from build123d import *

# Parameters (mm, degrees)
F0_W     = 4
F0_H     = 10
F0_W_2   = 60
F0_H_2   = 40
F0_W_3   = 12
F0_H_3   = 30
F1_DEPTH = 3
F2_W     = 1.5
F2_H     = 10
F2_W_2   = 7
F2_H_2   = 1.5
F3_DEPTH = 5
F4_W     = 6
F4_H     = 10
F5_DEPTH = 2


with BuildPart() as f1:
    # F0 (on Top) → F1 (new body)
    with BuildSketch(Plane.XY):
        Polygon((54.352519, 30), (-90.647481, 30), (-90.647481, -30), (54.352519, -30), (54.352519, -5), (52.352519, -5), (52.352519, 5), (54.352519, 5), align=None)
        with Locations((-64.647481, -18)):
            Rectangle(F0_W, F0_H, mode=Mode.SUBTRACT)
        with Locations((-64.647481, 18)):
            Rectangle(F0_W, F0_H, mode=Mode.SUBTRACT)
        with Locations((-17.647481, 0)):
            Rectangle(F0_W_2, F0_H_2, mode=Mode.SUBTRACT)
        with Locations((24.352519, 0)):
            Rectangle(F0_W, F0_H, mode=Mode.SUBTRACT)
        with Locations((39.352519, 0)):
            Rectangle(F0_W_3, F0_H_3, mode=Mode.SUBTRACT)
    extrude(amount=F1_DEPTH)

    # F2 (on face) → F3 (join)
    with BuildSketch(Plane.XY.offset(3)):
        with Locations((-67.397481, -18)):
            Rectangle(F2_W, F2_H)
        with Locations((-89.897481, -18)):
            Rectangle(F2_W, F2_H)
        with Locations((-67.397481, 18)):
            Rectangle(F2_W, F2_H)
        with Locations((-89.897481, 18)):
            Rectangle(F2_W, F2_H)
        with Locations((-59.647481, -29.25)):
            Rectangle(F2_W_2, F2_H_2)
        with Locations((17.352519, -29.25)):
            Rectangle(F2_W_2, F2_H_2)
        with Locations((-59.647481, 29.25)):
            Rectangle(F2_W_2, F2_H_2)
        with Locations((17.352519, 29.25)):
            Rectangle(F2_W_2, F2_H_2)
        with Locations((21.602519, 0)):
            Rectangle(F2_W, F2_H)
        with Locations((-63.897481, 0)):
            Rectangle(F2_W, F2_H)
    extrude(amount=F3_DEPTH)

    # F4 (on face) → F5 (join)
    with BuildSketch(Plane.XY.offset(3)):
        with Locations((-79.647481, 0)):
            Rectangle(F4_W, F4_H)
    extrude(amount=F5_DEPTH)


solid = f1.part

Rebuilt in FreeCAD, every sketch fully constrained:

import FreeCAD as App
import Part
import Sketcher

V = App.Vector
Q = App.Units.Quantity

doc = App.newDocument("Part")
body = doc.addObject("PartDesign::Body", "Body")

# Sketch on XY plane
sketch1 = body.newObject("Sketcher::SketchObject", "Sketch")
sketch1.AttachmentSupport = (doc.getObject("XY_Plane"), [""])
sketch1.MapMode = "FlatFace"
sketch1.addGeometry(Part.LineSegment(V(54.4, 30, 0), V(-90.6, 30, 0)), False)
sketch1.addGeometry(Part.LineSegment(V(-90.6, 30, 0), V(-90.6, -30, 0)), False)
sketch1.addGeometry(Part.LineSegment(V(-90.6, -30, 0), V(54.4, -30, 0)), False)
sketch1.addGeometry(Part.LineSegment(V(54.4, -30, 0), V(54.4, -5, 0)), False)
sketch1.addGeometry(Part.LineSegment(V(54.4, -5, 0), V(52.4, -5, 0)), False)
sketch1.addGeometry(Part.LineSegment(V(52.4, -5, 0), V(52.4, 5, 0)), False)
sketch1.addGeometry(Part.LineSegment(V(52.4, 5, 0), V(54.4, 5, 0)), False)
sketch1.addGeometry(Part.LineSegment(V(54.4, 5, 0), V(54.4, 30, 0)), False)
sketch1.addGeometry(Part.LineSegment(V(-62.6, -23, 0), V(-66.6, -23, 0)), False)
sketch1.addGeometry(Part.LineSegment(V(-66.6, -23, 0), V(-66.6, -13, 0)), False)
sketch1.addGeometry(Part.LineSegment(V(-66.6, -13, 0), V(-62.6, -13, 0)), False)
sketch1.addGeometry(Part.LineSegment(V(-62.6, -13, 0), V(-62.6, -23, 0)), False)
sketch1.addGeometry(Part.LineSegment(V(12.4, -20, 0), V(-47.6, -20, 0)), False)
sketch1.addGeometry(Part.LineSegment(V(-47.6, -20, 0), V(-47.6, 20, 0)), False)
sketch1.addGeometry(Part.LineSegment(V(-47.6, 20, 0), V(12.4, 20, 0)), False)
sketch1.addGeometry(Part.LineSegment(V(12.4, 20, 0), V(12.4, -20, 0)), False)
sketch1.addGeometry(Part.LineSegment(V(-62.6, 13, 0), V(-66.6, 13, 0)), False)
sketch1.addGeometry(Part.LineSegment(V(-66.6, 13, 0), V(-66.6, 23, 0)), False)
sketch1.addGeometry(Part.LineSegment(V(-66.6, 23, 0), V(-62.6, 23, 0)), False)
sketch1.addGeometry(Part.LineSegment(V(-62.6, 23, 0), V(-62.6, 13, 0)), False)
sketch1.addGeometry(Part.LineSegment(V(26.4, -5, 0), V(22.4, -5, 0)), False)
sketch1.addGeometry(Part.LineSegment(V(22.4, -5, 0), V(22.4, 5, 0)), False)
sketch1.addGeometry(Part.LineSegment(V(22.4, 5, 0), V(26.4, 5, 0)), False)
sketch1.addGeometry(Part.LineSegment(V(26.4, 5, 0), V(26.4, -5, 0)), False)
sketch1.addGeometry(Part.LineSegment(V(45.4, -15, 0), V(33.4, -15, 0)), False)
sketch1.addGeometry(Part.LineSegment(V(33.4, -15, 0), V(33.4, 15, 0)), False)
sketch1.addGeometry(Part.LineSegment(V(33.4, 15, 0), V(45.4, 15, 0)), False)
sketch1.addGeometry(Part.LineSegment(V(45.4, 15, 0), V(45.4, -15, 0)), False)
sketch1.addConstraint(Sketcher.Constraint("Coincident", 0, 2, 1, 1))
sketch1.addConstraint(Sketcher.Constraint("Coincident", 1, 2, 2, 1))
sketch1.addConstraint(Sketcher.Constraint("Coincident", 2, 2, 3, 1))
sketch1.addConstraint(Sketcher.Constraint("Coincident", 3, 2, 4, 1))
sketch1.addConstraint(Sketcher.Constraint("Coincident", 4, 2, 5, 1))
sketch1.addConstraint(Sketcher.Constraint("Coincident", 5, 2, 6, 1))
sketch1.addConstraint(Sketcher.Constraint("Coincident", 6, 2, 7, 1))
sketch1.addConstraint(Sketcher.Constraint("Coincident", 7, 2, 0, 1))
sketch1.addConstraint(Sketcher.Constraint("Coincident", 8, 2, 9, 1))
sketch1.addConstraint(Sketcher.Constraint("Coincident", 9, 2, 10, 1))
sketch1.addConstraint(Sketcher.Constraint("Coincident", 10, 2, 11, 1))
sketch1.addConstraint(Sketcher.Constraint("Coincident", 11, 2, 8, 1))
sketch1.addConstraint(Sketcher.Constraint("Coincident", 12, 2, 13, 1))
sketch1.addConstraint(Sketcher.Constraint("Coincident", 13, 2, 14, 1))
sketch1.addConstraint(Sketcher.Constraint("Coincident", 14, 2, 15, 1))
sketch1.addConstraint(Sketcher.Constraint("Coincident", 15, 2, 12, 1))
sketch1.addConstraint(Sketcher.Constraint("Coincident", 16, 2, 17, 1))
sketch1.addConstraint(Sketcher.Constraint("Coincident", 17, 2, 18, 1))
sketch1.addConstraint(Sketcher.Constraint("Coincident", 18, 2, 19, 1))
sketch1.addConstraint(Sketcher.Constraint("Coincident", 19, 2, 16, 1))
sketch1.addConstraint(Sketcher.Constraint("Coincident", 20, 2, 21, 1))
sketch1.addConstraint(Sketcher.Constraint("Coincident", 21, 2, 22, 1))
sketch1.addConstraint(Sketcher.Constraint("Coincident", 22, 2, 23, 1))
sketch1.addConstraint(Sketcher.Constraint("Coincident", 23, 2, 20, 1))
sketch1.addConstraint(Sketcher.Constraint("Coincident", 24, 2, 25, 1))
sketch1.addConstraint(Sketcher.Constraint("Coincident", 25, 2, 26, 1))
sketch1.addConstraint(Sketcher.Constraint("Coincident", 26, 2, 27, 1))
sketch1.addConstraint(Sketcher.Constraint("Coincident", 27, 2, 24, 1))
sketch1.addConstraint(Sketcher.Constraint("Horizontal", 0))
sketch1.addConstraint(Sketcher.Constraint("Vertical", 1))
sketch1.addConstraint(Sketcher.Constraint("Horizontal", 2))
sketch1.addConstraint(Sketcher.Constraint("Vertical", 3))
sketch1.addConstraint(Sketcher.Constraint("Horizontal", 4))
sketch1.addConstraint(Sketcher.Constraint("Vertical", 5))
sketch1.addConstraint(Sketcher.Constraint("Horizontal", 6))
sketch1.addConstraint(Sketcher.Constraint("Vertical", 7))
sketch1.addConstraint(Sketcher.Constraint("Horizontal", 8))
sketch1.addConstraint(Sketcher.Constraint("Vertical", 9))
sketch1.addConstraint(Sketcher.Constraint("Horizontal", 10))
sketch1.addConstraint(Sketcher.Constraint("Vertical", 11))
sketch1.addConstraint(Sketcher.Constraint("Horizontal", 12))
sketch1.addConstraint(Sketcher.Constraint("Vertical", 13))
sketch1.addConstraint(Sketcher.Constraint("Horizontal", 14))
sketch1.addConstraint(Sketcher.Constraint("Vertical", 15))
sketch1.addConstraint(Sketcher.Constraint("Horizontal", 16))
sketch1.addConstraint(Sketcher.Constraint("Vertical", 17))
sketch1.addConstraint(Sketcher.Constraint("Horizontal", 18))
sketch1.addConstraint(Sketcher.Constraint("Vertical", 19))
sketch1.addConstraint(Sketcher.Constraint("Horizontal", 20))
sketch1.addConstraint(Sketcher.Constraint("Vertical", 21))
sketch1.addConstraint(Sketcher.Constraint("Horizontal", 22))
sketch1.addConstraint(Sketcher.Constraint("Vertical", 23))
sketch1.addConstraint(Sketcher.Constraint("Horizontal", 24))
sketch1.addConstraint(Sketcher.Constraint("Vertical", 25))
sketch1.addConstraint(Sketcher.Constraint("Horizontal", 26))
sketch1.addConstraint(Sketcher.Constraint("Vertical", 27))
sketch1.addConstraint(Sketcher.Constraint("Symmetric", 3, 2, 6, 2, -1))
sketch1.addConstraint(Sketcher.Constraint("Symmetric", 9, 2, 16, 2, -1))
sketch1.addConstraint(Sketcher.Constraint("Symmetric", 11, 2, 18, 2, -1))
sketch1.addConstraint(Sketcher.Constraint("Horizontal", 4, 2, 20, 2))
sketch1.addConstraint(Sketcher.Constraint("Horizontal", 6, 2, 21, 2))
sketch1.addConstraint(Sketcher.Constraint("Equal", 18, 20))
sketch1.addConstraint(Sketcher.Constraint("Equal", 14, 1))
sketch1.addConstraint(Sketcher.Constraint("Equal", 3, 7))
sketch1.addConstraint(Sketcher.Constraint("Equal", 5, 9))
sketch1.addConstraint(Sketcher.Constraint("DistanceX", 0, 2, 0, 1, Q("145 mm")))
sketch1.addConstraint(Sketcher.Constraint("DistanceX", 4, 2, 4, 1, Q("2 mm")))
sketch1.addConstraint(Sketcher.Constraint("DistanceX", 8, 2, 8, 1, Q("4 mm")))
sketch1.addConstraint(Sketcher.Constraint("DistanceX", 12, 2, 12, 1, Q("60 mm")))
sketch1.addConstraint(Sketcher.Constraint("DistanceX", 24, 2, 24, 1, Q("12 mm")))
sketch1.addConstraint(Sketcher.Constraint("DistanceY", 3, 1, 3, 2, Q("25 mm")))
sketch1.addConstraint(Sketcher.Constraint("DistanceY", 13, 1, 13, 2, Q("40 mm")))
sketch1.addConstraint(Sketcher.Constraint("DistanceY", 25, 1, 25, 2, Q("30 mm")))
sketch1.addConstraint(Sketcher.Constraint("DistanceY", 8, 2, -1, 1, Q("23 mm")))
sketch1.addConstraint(Sketcher.Constraint("DistanceY", 12, 2, -1, 1, Q("20 mm")))
sketch1.addConstraint(Sketcher.Constraint("DistanceY", 24, 2, -1, 1, Q("15 mm")))
sketch1.addConstraint(Sketcher.Constraint("DistanceX", 1, 2, 8, 2, Q("24 mm")))
sketch1.addConstraint(Sketcher.Constraint("DistanceX", 11, 2, 12, 2, Q("15 mm")))
sketch1.addConstraint(Sketcher.Constraint("DistanceX", 15, 2, 20, 2, Q("10 mm")))
sketch1.addConstraint(Sketcher.Constraint("DistanceX", 23, 2, 24, 2, Q("7 mm")))
sketch1.addConstraint(Sketcher.Constraint("DistanceX", 0, 2, -1, 1, Q("90.647481 mm")))
pad1 = body.newObject("PartDesign::Pad", "Pad")
pad1.Profile = sketch1
pad1.Length = 3

# Sketch on XY plane
sketch2 = body.newObject("Sketcher::SketchObject", "Sketch001")
sketch2.AttachmentSupport = (doc.getObject("XY_Plane"), [""])
sketch2.MapMode = "FlatFace"
sketch2.AttachmentOffset = App.Placement(V(0, 0, 3), App.Rotation())
sketch2.addGeometry(Part.LineSegment(V(-68.1, -13, 0), V(-68.1, -23, 0)), False)
sketch2.addGeometry(Part.LineSegment(V(-68.1, -23, 0), V(-66.6, -23, 0)), False)
sketch2.addGeometry(Part.LineSegment(V(-66.6, -23, 0), V(-66.6, -13, 0)), False)
sketch2.addGeometry(Part.LineSegment(V(-66.6, -13, 0), V(-68.1, -13, 0)), False)
sketch2.addGeometry(Part.LineSegment(V(-90.6, -13, 0), V(-90.6, -23, 0)), False)
sketch2.addGeometry(Part.LineSegment(V(-90.6, -23, 0), V(-89.1, -23, 0)), False)
sketch2.addGeometry(Part.LineSegment(V(-89.1, -23, 0), V(-89.1, -13, 0)), False)
sketch2.addGeometry(Part.LineSegment(V(-89.1, -13, 0), V(-90.6, -13, 0)), False)
sketch2.addGeometry(Part.LineSegment(V(-68.1, 23, 0), V(-68.1, 13, 0)), False)
sketch2.addGeometry(Part.LineSegment(V(-68.1, 13, 0), V(-66.6, 13, 0)), False)
sketch2.addGeometry(Part.LineSegment(V(-66.6, 13, 0), V(-66.6, 23, 0)), False)
sketch2.addGeometry(Part.LineSegment(V(-66.6, 23, 0), V(-68.1, 23, 0)), False)
sketch2.addGeometry(Part.LineSegment(V(-90.6, 23, 0), V(-90.6, 13, 0)), False)
sketch2.addGeometry(Part.LineSegment(V(-90.6, 13, 0), V(-89.1, 13, 0)), False)
sketch2.addGeometry(Part.LineSegment(V(-89.1, 13, 0), V(-89.1, 23, 0)), False)
sketch2.addGeometry(Part.LineSegment(V(-89.1, 23, 0), V(-90.6, 23, 0)), False)
sketch2.addGeometry(Part.LineSegment(V(-63.1, -28.5, 0), V(-63.1, -30, 0)), False)
sketch2.addGeometry(Part.LineSegment(V(-63.1, -30, 0), V(-56.1, -30, 0)), False)
sketch2.addGeometry(Part.LineSegment(V(-56.1, -30, 0), V(-56.1, -28.5, 0)), False)
sketch2.addGeometry(Part.LineSegment(V(-56.1, -28.5, 0), V(-63.1, -28.5, 0)), False)
sketch2.addGeometry(Part.LineSegment(V(13.9, -28.5, 0), V(13.9, -30, 0)), False)
sketch2.addGeometry(Part.LineSegment(V(13.9, -30, 0), V(20.9, -30, 0)), False)
sketch2.addGeometry(Part.LineSegment(V(20.9, -30, 0), V(20.9, -28.5, 0)), False)
sketch2.addGeometry(Part.LineSegment(V(20.9, -28.5, 0), V(13.9, -28.5, 0)), False)
sketch2.addGeometry(Part.LineSegment(V(-63.1, 30, 0), V(-63.1, 28.5, 0)), False)
sketch2.addGeometry(Part.LineSegment(V(-63.1, 28.5, 0), V(-56.1, 28.5, 0)), False)
sketch2.addGeometry(Part.LineSegment(V(-56.1, 28.5, 0), V(-56.1, 30, 0)), False)
sketch2.addGeometry(Part.LineSegment(V(-56.1, 30, 0), V(-63.1, 30, 0)), False)
sketch2.addGeometry(Part.LineSegment(V(13.9, 30, 0), V(13.9, 28.5, 0)), False)
sketch2.addGeometry(Part.LineSegment(V(13.9, 28.5, 0), V(20.9, 28.5, 0)), False)
sketch2.addGeometry(Part.LineSegment(V(20.9, 28.5, 0), V(20.9, 30, 0)), False)
sketch2.addGeometry(Part.LineSegment(V(20.9, 30, 0), V(13.9, 30, 0)), False)
sketch2.addGeometry(Part.LineSegment(V(20.9, 5, 0), V(20.9, -5, 0)), False)
sketch2.addGeometry(Part.LineSegment(V(20.9, -5, 0), V(22.4, -5, 0)), False)
sketch2.addGeometry(Part.LineSegment(V(22.4, -5, 0), V(22.4, 5, 0)), False)
sketch2.addGeometry(Part.LineSegment(V(22.4, 5, 0), V(20.9, 5, 0)), False)
sketch2.addGeometry(Part.LineSegment(V(-64.6, 5, 0), V(-64.6, -5, 0)), False)
sketch2.addGeometry(Part.LineSegment(V(-64.6, -5, 0), V(-63.1, -5, 0)), False)
sketch2.addGeometry(Part.LineSegment(V(-63.1, -5, 0), V(-63.1, 5, 0)), False)
sketch2.addGeometry(Part.LineSegment(V(-63.1, 5, 0), V(-64.6, 5, 0)), False)
sketch2.addConstraint(Sketcher.Constraint("Coincident", 0, 2, 1, 1))
sketch2.addConstraint(Sketcher.Constraint("Coincident", 1, 2, 2, 1))
sketch2.addConstraint(Sketcher.Constraint("Coincident", 2, 2, 3, 1))
sketch2.addConstraint(Sketcher.Constraint("Coincident", 3, 2, 0, 1))
sketch2.addConstraint(Sketcher.Constraint("Coincident", 4, 2, 5, 1))
sketch2.addConstraint(Sketcher.Constraint("Coincident", 5, 2, 6, 1))
sketch2.addConstraint(Sketcher.Constraint("Coincident", 6, 2, 7, 1))
sketch2.addConstraint(Sketcher.Constraint("Coincident", 7, 2, 4, 1))
sketch2.addConstraint(Sketcher.Constraint("Coincident", 8, 2, 9, 1))
sketch2.addConstraint(Sketcher.Constraint("Coincident", 9, 2, 10, 1))
sketch2.addConstraint(Sketcher.Constraint("Coincident", 10, 2, 11, 1))
sketch2.addConstraint(Sketcher.Constraint("Coincident", 11, 2, 8, 1))
sketch2.addConstraint(Sketcher.Constraint("Coincident", 12, 2, 13, 1))
sketch2.addConstraint(Sketcher.Constraint("Coincident", 13, 2, 14, 1))
sketch2.addConstraint(Sketcher.Constraint("Coincident", 14, 2, 15, 1))
sketch2.addConstraint(Sketcher.Constraint("Coincident", 15, 2, 12, 1))
sketch2.addConstraint(Sketcher.Constraint("Coincident", 16, 2, 17, 1))
sketch2.addConstraint(Sketcher.Constraint("Coincident", 17, 2, 18, 1))
sketch2.addConstraint(Sketcher.Constraint("Coincident", 18, 2, 19, 1))
sketch2.addConstraint(Sketcher.Constraint("Coincident", 19, 2, 16, 1))
sketch2.addConstraint(Sketcher.Constraint("Coincident", 20, 2, 21, 1))
sketch2.addConstraint(Sketcher.Constraint("Coincident", 21, 2, 22, 1))
sketch2.addConstraint(Sketcher.Constraint("Coincident", 22, 2, 23, 1))
sketch2.addConstraint(Sketcher.Constraint("Coincident", 23, 2, 20, 1))
sketch2.addConstraint(Sketcher.Constraint("Coincident", 24, 2, 25, 1))
sketch2.addConstraint(Sketcher.Constraint("Coincident", 25, 2, 26, 1))
sketch2.addConstraint(Sketcher.Constraint("Coincident", 26, 2, 27, 1))
sketch2.addConstraint(Sketcher.Constraint("Coincident", 27, 2, 24, 1))
sketch2.addConstraint(Sketcher.Constraint("Coincident", 28, 2, 29, 1))
sketch2.addConstraint(Sketcher.Constraint("Coincident", 29, 2, 30, 1))
sketch2.addConstraint(Sketcher.Constraint("Coincident", 30, 2, 31, 1))
sketch2.addConstraint(Sketcher.Constraint("Coincident", 31, 2, 28, 1))
sketch2.addConstraint(Sketcher.Constraint("Coincident", 32, 2, 33, 1))
sketch2.addConstraint(Sketcher.Constraint("Coincident", 33, 2, 34, 1))
sketch2.addConstraint(Sketcher.Constraint("Coincident", 34, 2, 35, 1))
sketch2.addConstraint(Sketcher.Constraint("Coincident", 35, 2, 32, 1))
sketch2.addConstraint(Sketcher.Constraint("Coincident", 36, 2, 37, 1))
sketch2.addConstraint(Sketcher.Constraint("Coincident", 37, 2, 38, 1))
sketch2.addConstraint(Sketcher.Constraint("Coincident", 38, 2, 39, 1))
sketch2.addConstraint(Sketcher.Constraint("Coincident", 39, 2, 36, 1))
sketch2.addConstraint(Sketcher.Constraint("Vertical", 0))
sketch2.addConstraint(Sketcher.Constraint("Horizontal", 1))
sketch2.addConstraint(Sketcher.Constraint("Vertical", 2))
sketch2.addConstraint(Sketcher.Constraint("Horizontal", 3))
sketch2.addConstraint(Sketcher.Constraint("Vertical", 4))
sketch2.addConstraint(Sketcher.Constraint("Horizontal", 5))
sketch2.addConstraint(Sketcher.Constraint("Vertical", 6))
sketch2.addConstraint(Sketcher.Constraint("Horizontal", 7))
sketch2.addConstraint(Sketcher.Constraint("Vertical", 8))
sketch2.addConstraint(Sketcher.Constraint("Horizontal", 9))
sketch2.addConstraint(Sketcher.Constraint("Vertical", 10))
sketch2.addConstraint(Sketcher.Constraint("Horizontal", 11))
sketch2.addConstraint(Sketcher.Constraint("Vertical", 12))
sketch2.addConstraint(Sketcher.Constraint("Horizontal", 13))
sketch2.addConstraint(Sketcher.Constraint("Vertical", 14))
sketch2.addConstraint(Sketcher.Constraint("Horizontal", 15))
sketch2.addConstraint(Sketcher.Constraint("Vertical", 16))
sketch2.addConstraint(Sketcher.Constraint("Horizontal", 17))
sketch2.addConstraint(Sketcher.Constraint("Vertical", 18))
sketch2.addConstraint(Sketcher.Constraint("Horizontal", 19))
sketch2.addConstraint(Sketcher.Constraint("Vertical", 20))
sketch2.addConstraint(Sketcher.Constraint("Horizontal", 21))
sketch2.addConstraint(Sketcher.Constraint("Vertical", 22))
sketch2.addConstraint(Sketcher.Constraint("Horizontal", 23))
sketch2.addConstraint(Sketcher.Constraint("Vertical", 24))
sketch2.addConstraint(Sketcher.Constraint("Horizontal", 25))
sketch2.addConstraint(Sketcher.Constraint("Vertical", 26))
sketch2.addConstraint(Sketcher.Constraint("Horizontal", 27))
sketch2.addConstraint(Sketcher.Constraint("Vertical", 28))
sketch2.addConstraint(Sketcher.Constraint("Horizontal", 29))
sketch2.addConstraint(Sketcher.Constraint("Vertical", 30))
sketch2.addConstraint(Sketcher.Constraint("Horizontal", 31))
sketch2.addConstraint(Sketcher.Constraint("Vertical", 32))
sketch2.addConstraint(Sketcher.Constraint("Horizontal", 33))
sketch2.addConstraint(Sketcher.Constraint("Vertical", 34))
sketch2.addConstraint(Sketcher.Constraint("Horizontal", 35))
sketch2.addConstraint(Sketcher.Constraint("Vertical", 36))
sketch2.addConstraint(Sketcher.Constraint("Horizontal", 37))
sketch2.addConstraint(Sketcher.Constraint("Vertical", 38))
sketch2.addConstraint(Sketcher.Constraint("Horizontal", 39))
sketch2.addConstraint(Sketcher.Constraint("Symmetric", 3, 2, 8, 2, -1))
sketch2.addConstraint(Sketcher.Constraint("Symmetric", 1, 2, 10, 2, -1))
sketch2.addConstraint(Sketcher.Constraint("Symmetric", 7, 2, 12, 2, -1))
sketch2.addConstraint(Sketcher.Constraint("Symmetric", 5, 2, 14, 2, -1))
sketch2.addConstraint(Sketcher.Constraint("Symmetric", 19, 2, 24, 2, -1))
sketch2.addConstraint(Sketcher.Constraint("Symmetric", 17, 2, 26, 2, -1))
sketch2.addConstraint(Sketcher.Constraint("Symmetric", 23, 2, 28, 2, -1))
sketch2.addConstraint(Sketcher.Constraint("Symmetric", 21, 2, 30, 2, -1))
sketch2.addConstraint(Sketcher.Constraint("Horizontal", 1, 2, 4, 2))
sketch2.addConstraint(Sketcher.Constraint("Horizontal", 3, 2, 6, 2))
sketch2.addConstraint(Sketcher.Constraint("Horizontal", 17, 2, 20, 2))
sketch2.addConstraint(Sketcher.Constraint("Horizontal", 19, 2, 22, 2))
sketch2.addConstraint(Sketcher.Constraint("Horizontal", 33, 2, 36, 2))
sketch2.addConstraint(Sketcher.Constraint("Horizontal", 35, 2, 38, 2))
sketch2.addConstraint(Sketcher.Constraint("Vertical", 30, 2, 32, 2))
sketch2.addConstraint(Sketcher.Constraint("Vertical", 27, 2, 37, 2))
sketch2.addConstraint(Sketcher.Constraint("Equal", 3, 5))
sketch2.addConstraint(Sketcher.Constraint("Equal", 19, 21))
sketch2.addConstraint(Sketcher.Constraint("Equal", 15, 33))
sketch2.addConstraint(Sketcher.Constraint("Equal", 35, 37))
sketch2.addConstraint(Sketcher.Constraint("Equal", 39, 16))
sketch2.addConstraint(Sketcher.Constraint("Equal", 14, 32))
sketch2.addConstraint(Sketcher.Constraint("DistanceX", 17, 1, 17, 2, Q("7 mm")))
sketch2.addConstraint(Sketcher.Constraint("DistanceY", 0, 2, 0, 1, Q("10 mm")))
sketch2.addConstraint(Sketcher.Constraint("DistanceX", 1, 1, 1, 2, Q("1.5 mm")))
sketch2.addConstraint(Sketcher.Constraint("DistanceY", 0, 2, -1, 1, Q("23 mm")))
sketch2.addConstraint(Sketcher.Constraint("DistanceY", 16, 2, -1, 1, Q("30 mm")))
sketch2.addConstraint(Sketcher.Constraint("DistanceY", 32, 2, -1, 1, Q("5 mm")))
sketch2.addConstraint(Sketcher.Constraint("DistanceX", 4, 2, 1, 2, Q("24 mm")))
sketch2.addConstraint(Sketcher.Constraint("DistanceX", 0, 2, 16, 2, Q("5 mm")))
sketch2.addConstraint(Sketcher.Constraint("DistanceX", 17, 2, 20, 2, Q("70 mm")))
sketch2.addConstraint(Sketcher.Constraint("DistanceX", 0, 2, -1, 1, Q("68.147481 mm")))
pad2 = body.newObject("PartDesign::Pad", "Pad001")
pad2.Profile = sketch2
pad2.Length = 5

# Sketch on XY plane
sketch3 = body.newObject("Sketcher::SketchObject", "Sketch002")
sketch3.AttachmentSupport = (doc.getObject("XY_Plane"), [""])
sketch3.MapMode = "FlatFace"
sketch3.AttachmentOffset = App.Placement(V(0, 0, 3), App.Rotation())
sketch3.addGeometry(Part.LineSegment(V(-83, 5, 0), V(-83, -5, 0)), False)
sketch3.addGeometry(Part.LineSegment(V(-83, -5, 0), V(-77, -5, 0)), False)
sketch3.addGeometry(Part.LineSegment(V(-77, -5, 0), V(-77, 5, 0)), False)
sketch3.addGeometry(Part.LineSegment(V(-77, 5, 0), V(-83, 5, 0)), False)
sketch3.addConstraint(Sketcher.Constraint("Coincident", 0, 2, 1, 1))
sketch3.addConstraint(Sketcher.Constraint("Coincident", 1, 2, 2, 1))
sketch3.addConstraint(Sketcher.Constraint("Coincident", 2, 2, 3, 1))
sketch3.addConstraint(Sketcher.Constraint("Coincident", 3, 2, 0, 1))
sketch3.addConstraint(Sketcher.Constraint("Vertical", 0))
sketch3.addConstraint(Sketcher.Constraint("Horizontal", 1))
sketch3.addConstraint(Sketcher.Constraint("Vertical", 2))
sketch3.addConstraint(Sketcher.Constraint("Horizontal", 3))
sketch3.addConstraint(Sketcher.Constraint("DistanceX", 1, 1, 1, 2, Q("6 mm")))
sketch3.addConstraint(Sketcher.Constraint("DistanceY", 0, 2, 0, 1, Q("10 mm")))
sketch3.addConstraint(Sketcher.Constraint("DistanceY", 0, 2, -1, 1, Q("5 mm")))
sketch3.addConstraint(Sketcher.Constraint("DistanceX", 0, 2, -1, 1, Q("82.647481 mm")))
pad3 = body.newObject("PartDesign::Pad", "Pad002")
pad3.Profile = sketch3
pad3.Length = 2

doc.recompute()
